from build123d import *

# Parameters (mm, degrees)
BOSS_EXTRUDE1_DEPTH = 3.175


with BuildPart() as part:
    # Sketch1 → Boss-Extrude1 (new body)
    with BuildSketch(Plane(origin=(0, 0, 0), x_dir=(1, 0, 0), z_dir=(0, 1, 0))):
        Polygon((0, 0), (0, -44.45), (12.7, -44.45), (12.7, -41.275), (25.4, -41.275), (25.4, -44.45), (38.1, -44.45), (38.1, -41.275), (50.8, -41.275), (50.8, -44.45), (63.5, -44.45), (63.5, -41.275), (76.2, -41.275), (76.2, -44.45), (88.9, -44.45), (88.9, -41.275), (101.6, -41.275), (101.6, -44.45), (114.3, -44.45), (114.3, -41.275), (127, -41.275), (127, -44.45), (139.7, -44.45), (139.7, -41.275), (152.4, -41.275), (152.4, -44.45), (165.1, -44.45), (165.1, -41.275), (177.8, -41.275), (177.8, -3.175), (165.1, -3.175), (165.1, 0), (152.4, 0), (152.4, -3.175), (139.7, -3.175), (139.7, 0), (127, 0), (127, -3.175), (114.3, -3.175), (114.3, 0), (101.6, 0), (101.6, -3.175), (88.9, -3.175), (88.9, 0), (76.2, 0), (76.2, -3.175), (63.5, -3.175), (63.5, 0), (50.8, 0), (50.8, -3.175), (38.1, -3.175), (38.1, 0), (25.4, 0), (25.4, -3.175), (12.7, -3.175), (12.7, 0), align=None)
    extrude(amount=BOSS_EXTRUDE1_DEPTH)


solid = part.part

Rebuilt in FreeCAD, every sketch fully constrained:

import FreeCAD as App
import Part
import Sketcher

V = App.Vector
Q = App.Units.Quantity

doc = App.newDocument("Part")
body = doc.addObject("PartDesign::Body", "Body")

# Sketch on XZ plane
sketch1 = doc.addObject("Sketcher::SketchObject", "Sketch")
body.addObject(sketch1)
sketch1.AttachmentSupport = (doc.XZ_Plane, [""])
sketch1.MapMode = "FlatFace"
sketch1.addGeometry(Part.LineSegment(V(0, 0, 0), V(0, 44.5, 0)), False)
sketch1.addGeometry(Part.LineSegment(V(0, 44.5, 0), V(12.7, 44.5, 0)), False)
sketch1.addGeometry(Part.LineSegment(V(12.7, 44.5, 0), V(12.7, 41.3, 0)), False)
sketch1.addGeometry(Part.LineSegment(V(12.7, 41.3, 0), V(25.4, 41.3, 0)), False)
sketch1.addGeometry(Part.LineSegment(V(25.4, 41.3, 0), V(25.4, 44.5, 0)), False)
sketch1.addGeometry(Part.LineSegment(V(25.4, 44.5, 0), V(38.1, 44.5, 0)), False)
sketch1.addGeometry(Part.LineSegment(V(38.1, 44.5, 0), V(38.1, 41.3, 0)), False)
sketch1.addGeometry(Part.LineSegment(V(38.1, 41.3, 0), V(50.8, 41.3, 0)), False)
sketch1.addGeometry(Part.LineSegment(V(50.8, 41.3, 0), V(50.8, 44.5, 0)), False)
sketch1.addGeometry(Part.LineSegment(V(50.8, 44.5, 0), V(63.5, 44.5, 0)), False)
sketch1.addGeometry(Part.LineSegment(V(63.5, 44.5, 0), V(63.5, 41.3, 0)), False)
sketch1.addGeometry(Part.LineSegment(V(63.5, 41.3, 0), V(76.2, 41.3, 0)), False)
sketch1.addGeometry(Part.LineSegment(V(76.2, 41.3, 0), V(76.2, 44.5, 0)), False)
sketch1.addGeometry(Part.LineSegment(V(76.2, 44.5, 0), V(88.9, 44.5, 0)), False)
sketch1.addGeometry(Part.LineSegment(V(88.9, 44.5, 0), V(88.9, 41.3, 0)), False)
sketch1.addGeometry(Part.LineSegment(V(88.9, 41.3, 0), V(101.6, 41.3, 0)), False)
sketch1.addGeometry(Part.LineSegment(V(101.6, 41.3, 0), V(101.6, 44.5, 0)), False)
sketch1.addGeometry(Part.LineSegment(V(101.6, 44.5, 0), V(114.3, 44.5, 0)), False)
sketch1.addGeometry(Part.LineSegment(V(114.3, 44.5, 0), V(114.3, 41.3, 0)), False)
sketch1.addGeometry(Part.LineSegment(V(114.3, 41.3, 0), V(127, 41.3, 0)), False)
sketch1.addGeometry(Part.LineSegment(V(127, 41.3, 0), V(127, 44.5, 0)), False)
sketch1.addGeometry(Part.LineSegment(V(127, 44.5, 0), V(139.7, 44.5, 0)), False)
sketch1.addGeometry(Part.LineSegment(V(139.7, 44.5, 0), V(139.7, 41.3, 0)), False)
sketch1.addGeometry(Part.LineSegment(V(139.7, 41.3, 0), V(152.4, 41.3, 0)), False)
sketch1.addGeometry(Part.LineSegment(V(152.4, 41.3, 0), V(152.4, 44.5, 0)), False)
sketch1.addGeometry(Part.LineSegment(V(152.4, 44.5, 0), V(165.1, 44.5, 0)), False)
sketch1.addGeometry(Part.LineSegment(V(165.1, 44.5, 0), V(165.1, 41.3, 0)), False)
sketch1.addGeometry(Part.LineSegment(V(165.1, 41.3, 0), V(177.8, 41.3, 0)), False)
sketch1.addGeometry(Part.LineSegment(V(177.8, 41.3, 0), V(177.8, 3.2, 0)), False)
sketch1.addGeometry(Part.LineSegment(V(177.8, 3.2, 0), V(165.1, 3.2, 0)), False)
sketch1.addGeometry(Part.LineSegment(V(165.1, 3.2, 0), V(165.1, 0, 0)), False)
sketch1.addGeometry(Part.LineSegment(V(165.1, 0, 0), V(152.4, 0, 0)), False)
sketch1.addGeometry(Part.LineSegment(V(152.4, 0, 0), V(152.4, 3.2, 0)), False)
sketch1.addGeometry(Part.LineSegment(V(152.4, 3.2, 0), V(139.7, 3.2, 0)), False)
sketch1.addGeometry(Part.LineSegment(V(139.7, 3.2, 0), V(139.7, 0, 0)), False)
sketch1.addGeometry(Part.LineSegment(V(139.7, 0, 0), V(127, 0, 0)), False)
sketch1.addGeometry(Part.LineSegment(V(127, 0, 0), V(127, 3.2, 0)), False)
sketch1.addGeometry(Part.LineSegment(V(127, 3.2, 0), V(114.3, 3.2, 0)), False)
sketch1.addGeometry(Part.LineSegment(V(114.3, 3.2, 0), V(114.3, 0, 0)), False)
sketch1.addGeometry(Part.LineSegment(V(114.3, 0, 0), V(101.6, 0, 0)), False)
sketch1.addGeometry(Part.LineSegment(V(101.6, 0, 0), V(101.6, 3.2, 0)), False)
sketch1.addGeometry(Part.LineSegment(V(101.6, 3.2, 0), V(88.9, 3.2, 0)), False)
sketch1.addGeometry(Part.LineSegment(V(88.9, 3.2, 0), V(88.9, 0, 0)), False)
sketch1.addGeometry(Part.LineSegment(V(88.9, 0, 0), V(76.2, 0, 0)), False)
sketch1.addGeometry(Part.LineSegment(V(76.2, 0, 0), V(76.2, 3.2, 0)), False)
sketch1.addGeometry(Part.LineSegment(V(76.2, 3.2, 0), V(63.5, 3.2, 0)), False)
sketch1.addGeometry(Part.LineSegment(V(63.5, 3.2, 0), V(63.5, 0, 0)), False)
sketch1.addGeometry(Part.LineSegment(V(63.5, 0, 0), V(50.8, 0, 0)), False)
sketch1.addGeometry(Part.LineSegment(V(50.8, 0, 0), V(50.8, 3.2, 0)), False)
sketch1.addGeometry(Part.LineSegment(V(50.8, 3.2, 0), V(38.1, 3.2, 0)), False)
sketch1.addGeometry(Part.LineSegment(V(38.1, 3.2, 0), V(38.1, 0, 0)), False)
sketch1.addGeometry(Part.LineSegment(V(38.1, 0, 0), V(25.4, 0, 0)), False)
sketch1.addGeometry(Part.LineSegment(V(25.4, 0, 0), V(25.4, 3.2, 0)), False)
sketch1.addGeometry(Part.LineSegment(V(25.4, 3.2, 0), V(12.7, 3.2, 0)), False)
sketch1.addGeometry(Part.LineSegment(V(12.7, 3.2, 0), V(12.7, 0, 0)), False)
sketch1.addGeometry(Part.LineSegment(V(12.7, 0, 0), V(0, 0, 0)), False)
sketch1.addConstraint(Sketcher.Constraint("Coincident", 0, 2, 1, 1))
sketch1.addConstraint(Sketcher.Constraint("Coincident", 1, 2, 2, 1))
sketch1.addConstraint(Sketcher.Constraint("Coincident", 2, 2, 3, 1))
sketch1.addConstraint(Sketcher.Constraint("Coincident", 3, 2, 4, 1))
sketch1.addConstraint(Sketcher.Constraint("Coincident", 4, 2, 5, 1))
sketch1.addConstraint(Sketcher.Constraint("Coincident", 5, 2, 6, 1))
sketch1.addConstraint(Sketcher.Constraint("Coincident", 6, 2, 7, 1))
sketch1.addConstraint(Sketcher.Constraint("Coincident", 7, 2, 8, 1))
sketch1.addConstraint(Sketcher.Constraint("Coincident", 8, 2, 9, 1))
sketch1.addConstraint(Sketcher.Constraint("Coincident", 9, 2, 10, 1))
sketch1.addConstraint(Sketcher.Constraint("Coincident", 10, 2, 11, 1))
sketch1.addConstraint(Sketcher.Constraint("Coincident", 11, 2, 12, 1))
sketch1.addConstraint(Sketcher.Constraint("Coincident", 12, 2, 13, 1))
sketch1.addConstraint(Sketcher.Constraint("Coincident", 13, 2, 14, 1))
sketch1.addConstraint(Sketcher.Constraint("Coincident", 14, 2, 15, 1))
sketch1.addConstraint(Sketcher.Constraint("Coincident", 15, 2, 16, 1))
sketch1.addConstraint(Sketcher.Constraint("Coincident", 16, 2, 17, 1))
sketch1.addConstraint(Sketcher.Constraint("Coincident", 17, 2, 18, 1))
sketch1.addConstraint(Sketcher.Constraint("Coincident", 18, 2, 19, 1))
sketch1.addConstraint(Sketcher.Constraint("Coincident", 19, 2, 20, 1))
sketch1.addConstraint(Sketcher.Constraint("Coincident", 20, 2, 21, 1))
sketch1.addConstraint(Sketcher.Constraint("Coincident", 21, 2, 22, 1))
sketch1.addConstraint(Sketcher.Constraint("Coincident", 22, 2, 23, 1))
sketch1.addConstraint(Sketcher.Constraint("Coincident", 23, 2, 24, 1))
sketch1.addConstraint(Sketcher.Constraint("Coincident", 24, 2, 25, 1))
sketch1.addConstraint(Sketcher.Constraint("Coincident", 25, 2, 26, 1))
sketch1.addConstraint(Sketcher.Constraint("Coincident", 26, 2, 27, 1))
sketch1.addConstraint(Sketcher.Constraint("Coincident", 27, 2, 28, 1))
sketch1.addConstraint(Sketcher.Constraint("Coincident", 28, 2, 29, 1))
sketch1.addConstraint(Sketcher.Constraint("Coincident", 29, 2, 30, 1))
sketch1.addConstraint(Sketcher.Constraint("Coincident", 30, 2, 31, 1))
sketch1.addConstraint(Sketcher.Constraint("Coincident", 31, 2, 32, 1))
sketch1.addConstraint(Sketcher.Constraint("Coincident", 32, 2, 33, 1))
sketch1.addConstraint(Sketcher.Constraint("Coincident", 33, 2, 34, 1))
sketch1.addConstraint(Sketcher.Constraint("Coincident", 34, 2, 35, 1))
sketch1.addConstraint(Sketcher.Constraint("Coincident", 35, 2, 36, 1))
sketch1.addConstraint(Sketcher.Constraint("Coincident", 36, 2, 37, 1))
sketch1.addConstraint(Sketcher.Constraint("Coincident", 37, 2, 38, 1))
sketch1.addConstraint(Sketcher.Constraint("Coincident", 38, 2, 39, 1))
sketch1.addConstraint(Sketcher.Constraint("Coincident", 39, 2, 40, 1))
sketch1.addConstraint(Sketcher.Constraint("Coincident", 40, 2, 41, 1))
sketch1.addConstraint(Sketcher.Constraint("Coincident", 41, 2, 42, 1))
sketch1.addConstraint(Sketcher.Constraint("Coincident", 42, 2, 43, 1))
sketch1.addConstraint(Sketcher.Constraint("Coincident", 43, 2, 44, 1))
sketch1.addConstraint(Sketcher.Constraint("Coincident", 44, 2, 45, 1))
sketch1.addConstraint(Sketcher.Constraint("Coincident", 45, 2, 46, 1))
sketch1.addConstraint(Sketcher.Constraint("Coincident", 46, 2, 47, 1))
sketch1.addConstraint(Sketcher.Constraint("Coincident", 47, 2, 48, 1))
sketch1.addConstraint(Sketcher.Constraint("Coincident", 48, 2, 49, 1))
sketch1.addConstraint(Sketcher.Constraint("Coincident", 49, 2, 50, 1))
sketch1.addConstraint(Sketcher.Constraint("Coincident", 50, 2, 51, 1))
sketch1.addConstraint(Sketcher.Constraint("Coincident", 51, 2, 52, 1))
sketch1.addConstraint(Sketcher.Constraint("Coincident", 52, 2, 53, 1))
sketch1.addConstraint(Sketcher.Constraint("Coincident", 53, 2, 54, 1))
sketch1.addConstraint(Sketcher.Constraint("Coincident", 54, 2, 55, 1))
sketch1.addConstraint(Sketcher.Constraint("Coincident", 55, 2, 0, 1))
sketch1.addConstraint(Sketcher.Constraint("Vertical", 0))
sketch1.addConstraint(Sketcher.Constraint("Horizontal", 1))
sketch1.addConstraint(Sketcher.Constraint("Vertical", 2))
sketch1.addConstraint(Sketcher.Constraint("Horizontal", 3))
sketch1.addConstraint(Sketcher.Constraint("Vertical", 4))
sketch1.addConstraint(Sketcher.Constraint("Horizontal", 5))
sketch1.addConstraint(Sketcher.Constraint("Vertical", 6))
sketch1.addConstraint(Sketcher.Constraint("Horizontal", 7))
sketch1.addConstraint(Sketcher.Constraint("Vertical", 8))
sketch1.addConstraint(Sketcher.Constraint("Horizontal", 9))
sketch1.addConstraint(Sketcher.Constraint("Vertical", 10))
sketch1.addConstraint(Sketcher.Constraint("Horizontal", 11))
sketch1.addConstraint(Sketcher.Constraint("Vertical", 12))
sketch1.addConstraint(Sketcher.Constraint("Horizontal", 13))
sketch1.addConstraint(Sketcher.Constraint("Vertical", 14))
sketch1.addConstraint(Sketcher.Constraint("Horizontal", 15))
sketch1.addConstraint(Sketcher.Constraint("Vertical", 16))
sketch1.addConstraint(Sketcher.Constraint("Horizontal", 17))
sketch1.addConstraint(Sketcher.Constraint("Vertical", 18))
sketch1.addConstraint(Sketcher.Constraint("Horizontal", 19))
sketch1.addConstraint(Sketcher.Constraint("Vertical", 20))
sketch1.addConstraint(Sketcher.Constraint("Horizontal", 21))
sketch1.addConstraint(Sketcher.Constraint("Vertical", 22))
sketch1.addConstraint(Sketcher.Constraint("Horizontal", 23))
sketch1.addConstraint(Sketcher.Constraint("Vertical", 24))
sketch1.addConstraint(Sketcher.Constraint("Horizontal", 25))
sketch1.addConstraint(Sketcher.Constraint("Vertical", 26))
sketch1.addConstraint(Sketcher.Constraint("Horizontal", 27))
sketch1.addConstraint(Sketcher.Constraint("Vertical", 28))
sketch1.addConstraint(Sketcher.Constraint("Horizontal", 29))
sketch1.addConstraint(Sketcher.Constraint("Vertical", 30))
sketch1.addConstraint(Sketcher.Constraint("Horizontal", 31))
sketch1.addConstraint(Sketcher.Constraint("Vertical", 32))
sketch1.addConstraint(Sketcher.Constraint("Horizontal", 33))
sketch1.addConstraint(Sketcher.Constraint("Vertical", 34))
sketch1.addConstraint(Sketcher.Constraint("Horizontal", 35))
sketch1.addConstraint(Sketcher.Constraint("Vertical", 36))
sketch1.addConstraint(Sketcher.Constraint("Horizontal", 37))
sketch1.addConstraint(Sketcher.Constraint("Vertical", 38))
sketch1.addConstraint(Sketcher.Constraint("Horizontal", 39))
sketch1.addConstraint(Sketcher.Constraint("Vertical", 40))
sketch1.addConstraint(Sketcher.Constraint("Horizontal", 41))
sketch1.addConstraint(Sketcher.Constraint("Vertical", 42))
sketch1.addConstraint(Sketcher.Constraint("Horizontal", 43))
sketch1.addConstraint(Sketcher.Constraint("Vertical", 44))
sketch1.addConstraint(Sketcher.Constraint("Horizontal", 45))
sketch1.addConstraint(Sketcher.Constraint("Vertical", 46))
sketch1.addConstraint(Sketcher.Constraint("Horizontal", 47))
sketch1.addConstraint(Sketcher.Constraint("Vertical", 48))
sketch1.addConstraint(Sketcher.Constraint("Horizontal", 49))
sketch1.addConstraint(Sketcher.Constraint("Vertical", 50))
sketch1.addConstraint(Sketcher.Constraint("Horizontal", 51))
sketch1.addConstraint(Sketcher.Constraint("Vertical", 52))
sketch1.addConstraint(Sketcher.Constraint("Horizontal", 53))
sketch1.addConstraint(Sketcher.Constraint("Vertical", 54))
sketch1.addConstraint(Sketcher.Constraint("Horizontal", 55))
sketch1.addConstraint(Sketcher.Constraint("Coincident", 55, 2, -1, 1))
sketch1.addConstraint(Sketcher.Constraint("PointOnObject", 30, 2, -1))
sketch1.addConstraint(Sketcher.Constraint("PointOnObject", 34, 2, -1))
sketch1.addConstraint(Sketcher.Constraint("PointOnObject", 38, 2, -1))
sketch1.addConstraint(Sketcher.Constraint("PointOnObject", 42, 2, -1))
sketch1.addConstraint(Sketcher.Constraint("PointOnObject", 46, 2, -1))
sketch1.addConstraint(Sketcher.Constraint("PointOnObject", 50, 2, -1))
sketch1.addConstraint(Sketcher.Constraint("Horizontal", 1, 2, 4, 2))
sketch1.addConstraint(Sketcher.Constraint("Horizontal", 3, 2, 6, 2))
sketch1.addConstraint(Sketcher.Constraint("Horizontal", 5, 2, 8, 2))
sketch1.addConstraint(Sketcher.Constraint("Horizontal", 7, 2, 10, 2))
sketch1.addConstraint(Sketcher.Constraint("Horizontal", 9, 2, 12, 2))
sketch1.addConstraint(Sketcher.Constraint("Horizontal", 11, 2, 14, 2))
sketch1.addConstraint(Sketcher.Constraint("Horizontal", 13, 2, 16, 2))
sketch1.addConstraint(Sketcher.Constraint("Horizontal", 15, 2, 18, 2))
sketch1.addConstraint(Sketcher.Constraint("Horizontal", 17, 2, 20, 2))
sketch1.addConstraint(Sketcher.Constraint("Horizontal", 19, 2, 22, 2))
sketch1.addConstraint(Sketcher.Constraint("Horizontal", 21, 2, 24, 2))
sketch1.addConstraint(Sketcher.Constraint("Horizontal", 23, 2, 26, 2))
sketch1.addConstraint(Sketcher.Constraint("Horizontal", 29, 2, 32, 2))
sketch1.addConstraint(Sketcher.Constraint("Horizontal", 33, 2, 36, 2))
sketch1.addConstraint(Sketcher.Constraint("Horizontal", 37, 2, 40, 2))
sketch1.addConstraint(Sketcher.Constraint("Horizontal", 41, 2, 44, 2))
sketch1.addConstraint(Sketcher.Constraint("Horizontal", 45, 2, 48, 2))
sketch1.addConstraint(Sketcher.Constraint("Horizontal", 49, 2, 52, 2))
sketch1.addConstraint(Sketcher.Constraint("Vertical", 26, 2, 29, 2))
sketch1.addConstraint(Sketcher.Constraint("Vertical", 24, 2, 31, 2))
sketch1.addConstraint(Sketcher.Constraint("Vertical", 22, 2, 33, 2))
sketch1.addConstraint(Sketcher.Constraint("Vertical", 20, 2, 35, 2))
sketch1.addConstraint(Sketcher.Constraint("Vertical", 18, 2, 37, 2))
sketch1.addConstraint(Sketcher.Constraint("Vertical", 16, 2, 39, 2))
sketch1.addConstraint(Sketcher.Constraint("Vertical", 14, 2, 41, 2))
sketch1.addConstraint(Sketcher.Constraint("Vertical", 12, 2, 43, 2))
sketch1.addConstraint(Sketcher.Constraint("Vertical", 10, 2, 45, 2))
sketch1.addConstraint(Sketcher.Constraint("Vertical", 8, 2, 47, 2))
sketch1.addConstraint(Sketcher.Constraint("Vertical", 6, 2, 49, 2))
sketch1.addConstraint(Sketcher.Constraint("Vertical", 4, 2, 51, 2))
sketch1.addConstraint(Sketcher.Constraint("Vertical", 2, 2, 53, 2))
sketch1.addConstraint(Sketcher.Constraint("Equal", 1, 3))
sketch1.addConstraint(Sketcher.Constraint("Equal", 3, 5))
sketch1.addConstraint(Sketcher.Constraint("Equal", 5, 7))
sketch1.addConstraint(Sketcher.Constraint("Equal", 7, 9))
sketch1.addConstraint(Sketcher.Constraint("Equal", 9, 11))
sketch1.addConstraint(Sketcher.Constraint("Equal", 11, 13))
sketch1.addConstraint(Sketcher.Constraint("Equal", 13, 15))
sketch1.addConstraint(Sketcher.Constraint("Equal", 15, 17))
sketch1.addConstraint(Sketcher.Constraint("Equal", 17, 19))
sketch1.addConstraint(Sketcher.Constraint("Equal", 19, 21))
sketch1.addConstraint(Sketcher.Constraint("Equal", 21, 23))
sketch1.addConstraint(Sketcher.Constraint("Equal", 23, 25))
sketch1.addConstraint(Sketcher.Constraint("Equal", 25, 27))
sketch1.addConstraint(Sketcher.Constraint("Equal", 26, 30))
sketch1.addConstraint(Sketcher.Constraint("DistanceX", 1, 1, 1, 2, Q("0.5 in")))
sketch1.addConstraint(Sketcher.Constraint("DistanceY", 28, 2, 28, 1, Q("1.5 in")))
sketch1.addConstraint(Sketcher.Constraint("DistanceY", 0, 1, 0, 2, Q("1.75 in")))
pad1 = doc.addObject("PartDesign::Pad", "Pad")
body.addObject(pad1)
pad1.Profile = sketch1
pad1.Length = Q("0.125 in")
pad1.Reversed = True

doc.recompute()
